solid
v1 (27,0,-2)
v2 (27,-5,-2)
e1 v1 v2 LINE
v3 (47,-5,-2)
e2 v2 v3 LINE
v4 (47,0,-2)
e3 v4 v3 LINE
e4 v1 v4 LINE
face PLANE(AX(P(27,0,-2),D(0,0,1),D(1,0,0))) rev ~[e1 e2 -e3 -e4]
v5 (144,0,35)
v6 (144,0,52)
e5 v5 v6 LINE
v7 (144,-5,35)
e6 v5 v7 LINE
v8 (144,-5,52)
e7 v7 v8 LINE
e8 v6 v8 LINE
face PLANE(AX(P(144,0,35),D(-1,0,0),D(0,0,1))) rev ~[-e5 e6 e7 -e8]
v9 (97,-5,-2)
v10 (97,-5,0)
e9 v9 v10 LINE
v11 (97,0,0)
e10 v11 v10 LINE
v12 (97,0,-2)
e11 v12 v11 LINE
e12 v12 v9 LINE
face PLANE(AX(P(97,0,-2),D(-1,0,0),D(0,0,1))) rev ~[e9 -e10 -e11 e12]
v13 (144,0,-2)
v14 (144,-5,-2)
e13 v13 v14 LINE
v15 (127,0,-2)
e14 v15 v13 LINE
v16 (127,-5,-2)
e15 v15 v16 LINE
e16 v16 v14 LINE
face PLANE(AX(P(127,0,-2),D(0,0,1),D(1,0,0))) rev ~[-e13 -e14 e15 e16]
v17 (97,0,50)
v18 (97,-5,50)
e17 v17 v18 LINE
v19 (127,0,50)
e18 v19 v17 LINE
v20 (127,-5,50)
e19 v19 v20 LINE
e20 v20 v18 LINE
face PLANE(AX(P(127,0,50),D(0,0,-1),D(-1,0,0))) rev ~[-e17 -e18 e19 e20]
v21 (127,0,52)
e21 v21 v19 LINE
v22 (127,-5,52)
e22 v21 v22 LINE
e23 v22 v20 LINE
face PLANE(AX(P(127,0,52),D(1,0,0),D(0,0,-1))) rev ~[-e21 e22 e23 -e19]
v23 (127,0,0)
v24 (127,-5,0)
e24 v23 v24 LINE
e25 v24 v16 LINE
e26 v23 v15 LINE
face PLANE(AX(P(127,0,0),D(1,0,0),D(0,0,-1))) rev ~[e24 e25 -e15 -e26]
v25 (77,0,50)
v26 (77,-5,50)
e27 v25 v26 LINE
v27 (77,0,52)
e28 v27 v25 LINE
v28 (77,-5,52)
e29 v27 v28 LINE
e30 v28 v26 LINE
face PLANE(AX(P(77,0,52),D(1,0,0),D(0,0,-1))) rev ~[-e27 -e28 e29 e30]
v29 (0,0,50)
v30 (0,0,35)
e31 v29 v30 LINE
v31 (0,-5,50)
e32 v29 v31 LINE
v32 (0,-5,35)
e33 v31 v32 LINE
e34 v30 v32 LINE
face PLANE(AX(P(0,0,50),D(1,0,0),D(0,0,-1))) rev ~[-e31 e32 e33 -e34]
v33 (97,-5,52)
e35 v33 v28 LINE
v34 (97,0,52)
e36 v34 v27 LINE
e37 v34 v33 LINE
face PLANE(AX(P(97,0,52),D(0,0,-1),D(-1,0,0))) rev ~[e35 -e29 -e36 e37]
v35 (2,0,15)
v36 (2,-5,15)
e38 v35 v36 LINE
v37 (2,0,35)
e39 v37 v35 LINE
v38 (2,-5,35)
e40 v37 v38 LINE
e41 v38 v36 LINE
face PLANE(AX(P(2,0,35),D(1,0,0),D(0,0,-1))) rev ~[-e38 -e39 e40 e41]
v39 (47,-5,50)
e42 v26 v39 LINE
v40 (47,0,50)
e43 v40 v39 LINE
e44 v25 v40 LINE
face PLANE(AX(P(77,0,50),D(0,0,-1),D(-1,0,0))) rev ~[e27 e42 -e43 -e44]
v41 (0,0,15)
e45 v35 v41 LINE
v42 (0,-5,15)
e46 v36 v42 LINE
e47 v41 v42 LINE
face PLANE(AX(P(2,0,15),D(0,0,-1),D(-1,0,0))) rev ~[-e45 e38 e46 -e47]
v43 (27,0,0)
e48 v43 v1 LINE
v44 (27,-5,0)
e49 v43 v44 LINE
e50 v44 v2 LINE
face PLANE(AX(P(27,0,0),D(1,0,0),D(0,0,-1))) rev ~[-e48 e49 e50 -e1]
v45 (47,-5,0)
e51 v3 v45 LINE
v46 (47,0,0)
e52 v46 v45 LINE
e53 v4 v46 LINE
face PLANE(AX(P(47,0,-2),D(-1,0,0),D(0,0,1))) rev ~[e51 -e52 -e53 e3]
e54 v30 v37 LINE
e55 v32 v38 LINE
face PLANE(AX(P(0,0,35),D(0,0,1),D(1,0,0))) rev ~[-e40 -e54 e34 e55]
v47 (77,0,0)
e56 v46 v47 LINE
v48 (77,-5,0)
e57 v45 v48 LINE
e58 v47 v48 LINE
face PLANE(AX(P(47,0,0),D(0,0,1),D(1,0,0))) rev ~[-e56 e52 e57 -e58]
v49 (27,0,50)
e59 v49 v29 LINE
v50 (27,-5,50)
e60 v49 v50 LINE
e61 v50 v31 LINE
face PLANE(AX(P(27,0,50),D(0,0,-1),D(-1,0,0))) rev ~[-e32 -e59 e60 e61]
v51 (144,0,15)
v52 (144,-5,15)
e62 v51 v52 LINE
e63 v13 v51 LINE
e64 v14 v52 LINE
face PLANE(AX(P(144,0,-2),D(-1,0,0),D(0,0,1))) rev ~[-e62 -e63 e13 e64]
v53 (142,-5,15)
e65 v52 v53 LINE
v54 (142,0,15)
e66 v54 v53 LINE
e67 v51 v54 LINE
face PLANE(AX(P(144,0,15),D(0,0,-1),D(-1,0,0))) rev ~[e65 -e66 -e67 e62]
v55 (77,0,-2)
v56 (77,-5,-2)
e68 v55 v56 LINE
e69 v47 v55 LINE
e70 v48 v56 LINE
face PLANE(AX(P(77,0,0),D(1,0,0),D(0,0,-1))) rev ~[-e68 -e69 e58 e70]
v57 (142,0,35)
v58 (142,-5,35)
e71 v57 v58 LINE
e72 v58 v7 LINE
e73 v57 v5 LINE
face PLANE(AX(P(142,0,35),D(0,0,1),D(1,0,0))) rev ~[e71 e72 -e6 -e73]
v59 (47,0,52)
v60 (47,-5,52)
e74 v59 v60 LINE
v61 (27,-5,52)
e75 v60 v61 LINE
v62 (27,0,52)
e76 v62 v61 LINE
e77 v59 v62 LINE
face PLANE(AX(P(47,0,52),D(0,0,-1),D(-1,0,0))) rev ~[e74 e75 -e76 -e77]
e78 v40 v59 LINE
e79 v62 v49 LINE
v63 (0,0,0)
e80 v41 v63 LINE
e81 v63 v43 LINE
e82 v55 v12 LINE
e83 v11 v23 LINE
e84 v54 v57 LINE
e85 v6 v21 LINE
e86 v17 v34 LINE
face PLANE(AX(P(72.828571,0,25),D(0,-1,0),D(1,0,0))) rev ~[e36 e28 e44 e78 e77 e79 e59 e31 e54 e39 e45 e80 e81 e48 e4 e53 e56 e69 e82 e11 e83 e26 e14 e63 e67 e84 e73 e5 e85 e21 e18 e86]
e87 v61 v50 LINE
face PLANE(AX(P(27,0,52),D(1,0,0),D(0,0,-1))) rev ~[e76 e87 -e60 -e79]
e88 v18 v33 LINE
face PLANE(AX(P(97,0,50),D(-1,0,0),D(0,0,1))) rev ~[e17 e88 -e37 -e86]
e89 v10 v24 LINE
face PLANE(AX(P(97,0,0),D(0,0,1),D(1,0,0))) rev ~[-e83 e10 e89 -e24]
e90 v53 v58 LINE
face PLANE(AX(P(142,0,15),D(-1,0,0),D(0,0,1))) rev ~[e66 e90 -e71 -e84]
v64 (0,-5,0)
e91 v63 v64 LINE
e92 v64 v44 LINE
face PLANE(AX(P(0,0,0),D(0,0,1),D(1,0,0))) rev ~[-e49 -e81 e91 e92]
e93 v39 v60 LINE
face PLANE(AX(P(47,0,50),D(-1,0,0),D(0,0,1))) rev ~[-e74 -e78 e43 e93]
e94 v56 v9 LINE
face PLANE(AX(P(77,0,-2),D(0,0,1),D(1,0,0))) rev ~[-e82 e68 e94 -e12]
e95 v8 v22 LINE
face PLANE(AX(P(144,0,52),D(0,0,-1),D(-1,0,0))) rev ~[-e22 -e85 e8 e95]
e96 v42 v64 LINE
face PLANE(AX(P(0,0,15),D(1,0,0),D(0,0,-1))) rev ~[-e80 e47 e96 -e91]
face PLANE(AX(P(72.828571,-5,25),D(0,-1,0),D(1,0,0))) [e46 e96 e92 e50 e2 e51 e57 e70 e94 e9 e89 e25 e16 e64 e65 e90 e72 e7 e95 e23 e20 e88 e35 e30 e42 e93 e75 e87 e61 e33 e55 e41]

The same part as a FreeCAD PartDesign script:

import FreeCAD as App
import Part
import Sketcher
from FreeCAD import Vector


def add_polygon(sketch, points):
    """Adds a closed chain of lines whose ends are joined by coincident constraints."""
    first, n = sketch.GeometryCount, len(points)
    for a, b in zip(points, points[1:] + points[:1]):
        sketch.addGeometry(Part.LineSegment(App.Vector(*a, 0), App.Vector(*b, 0)), False)
    for i in range(n):
        sketch.addConstraint(Sketcher.Constraint("Coincident", first + i, 2, first + (i + 1) % n, 1))

doc = App.newDocument("Part")
body = doc.addObject("PartDesign::Body", "Body")

# Sketch on XZ plane
sketch1 = doc.addObject("Sketcher::SketchObject", "Sketch")
body.addObject(sketch1)
sketch1.AttachmentSupport = (doc.XZ_Plane, [""])
sketch1.MapMode = "FlatFace"
add_polygon(sketch1, [(0, 15), (0, 0), (27, 0), (27, -2), (47, -2), (47, 0), (77, 0), (77, -2), (97, -2), (97, 0), (127, 0), (127, -2), (144, -2), (144, 15), (142, 15), (142, 35), (144, 35), (144, 52), (127, 52), (127, 50), (97, 50), (97, 52), (77, 52), (77, 50), (47, 50), (47, 52), (27, 52), (27, 50), (0, 50), (0, 35), (2, 35), (2, 15)])  # lines 0-31
sketch1.addConstraint([
    Sketcher.Constraint("Vertical", 0),
    Sketcher.Constraint("Horizontal", 1),
    Sketcher.Constraint("Vertical", 2),
    Sketcher.Constraint("Horizontal", 3),
    Sketcher.Constraint("Vertical", 4),
    Sketcher.Constraint("Horizontal", 5),
    Sketcher.Constraint("Vertical", 6),
    Sketcher.Constraint("Horizontal", 7),
    Sketcher.Constraint("Vertical", 8),
    Sketcher.Constraint("Horizontal", 9),
    Sketcher.Constraint("Vertical", 10),
    Sketcher.Constraint("Horizontal", 11),
    Sketcher.Constraint("Vertical", 12),
    Sketcher.Constraint("Horizontal", 13),
    Sketcher.Constraint("Vertical", 14),
    Sketcher.Constraint("Horizontal", 15),
    Sketcher.Constraint("Vertical", 16),
    Sketcher.Constraint("Horizontal", 17),
    Sketcher.Constraint("Vertical", 18),
    Sketcher.Constraint("Horizontal", 19),
    Sketcher.Constraint("Vertical", 20),
    Sketcher.Constraint("Horizontal", 21),
    Sketcher.Constraint("Vertical", 22),
    Sketcher.Constraint("Horizontal", 23),
    Sketcher.Constraint("Vertical", 24),
    Sketcher.Constraint("Horizontal", 25),
    Sketcher.Constraint("Vertical", 26),
    Sketcher.Constraint("Horizontal", 27),
    Sketcher.Constraint("Vertical", 28),
    Sketcher.Constraint("Horizontal", 29),
    Sketcher.Constraint("Vertical", 30),
    Sketcher.Constraint("Horizontal", 31),
    Sketcher.Constraint("Coincident", 0, 2, -1, 1),
    Sketcher.Constraint("PointOnObject", 4, 2, -1),
    Sketcher.Constraint("PointOnObject", 8, 2, -1),
    Sketcher.Constraint("PointOnObject", 27, 2, -2),
    Sketcher.Constraint("Horizontal", 3, 2, 6, 2),
    Sketcher.Constraint("Horizontal", 7, 2, 10, 2),
    Sketcher.Constraint("Horizontal", 17, 2, 20, 2),
    Sketcher.Constraint("Horizontal", 19, 2, 22, 2),
    Sketcher.Constraint("Horizontal", 21, 2, 24, 2),
    Sketcher.Constraint("Horizontal", 23, 2, 26, 2),
    Sketcher.Constraint("Horizontal", 15, 2, 28, 2),
    Sketcher.Constraint("Horizontal", 13, 2, 30, 2),
    Sketcher.Constraint("Vertical", 12, 2, 15, 2),
    Sketcher.Constraint("Vertical", 10, 2, 17, 2),
    Sketcher.Constraint("Vertical", 8, 2, 19, 2),
    Sketcher.Constraint("Vertical", 6, 2, 21, 2),
    Sketcher.Constraint("Vertical", 4, 2, 23, 2),
    Sketcher.Constraint("Vertical", 2, 2, 25, 2),
    Sketcher.Constraint("Equal", 3, 7),
    Sketcher.Constraint("Equal", 5, 9),
    Sketcher.Constraint("Equal", 15, 29),
    Sketcher.Constraint("Equal", 31, 2),
    Sketcher.Constraint("Equal", 17, 12),
    Sketcher.Constraint("Equal", 25, 14),
    Sketcher.Constraint("Equal", 12, 16),
    Sketcher.Constraint("Equal", 10, 18),
    Sketcher.Constraint("DistanceX", 1, 1, 1, 2, 27.0),
    Sketcher.Constraint("DistanceX", 3, 1, 3, 2, 20.0),
    Sketcher.Constraint("DistanceX", 5, 1, 5, 2, 30.0),
    Sketcher.Constraint("DistanceX", 11, 1, 11, 2, 17.0),
    Sketcher.Constraint("DistanceX", 13, 2, 13, 1, 2.0),
])
pad1 = doc.addObject("PartDesign::Pad", "Pad")
body.addObject(pad1)
pad1.Profile = sketch1
pad1.Length = 5

doc.recompute()
